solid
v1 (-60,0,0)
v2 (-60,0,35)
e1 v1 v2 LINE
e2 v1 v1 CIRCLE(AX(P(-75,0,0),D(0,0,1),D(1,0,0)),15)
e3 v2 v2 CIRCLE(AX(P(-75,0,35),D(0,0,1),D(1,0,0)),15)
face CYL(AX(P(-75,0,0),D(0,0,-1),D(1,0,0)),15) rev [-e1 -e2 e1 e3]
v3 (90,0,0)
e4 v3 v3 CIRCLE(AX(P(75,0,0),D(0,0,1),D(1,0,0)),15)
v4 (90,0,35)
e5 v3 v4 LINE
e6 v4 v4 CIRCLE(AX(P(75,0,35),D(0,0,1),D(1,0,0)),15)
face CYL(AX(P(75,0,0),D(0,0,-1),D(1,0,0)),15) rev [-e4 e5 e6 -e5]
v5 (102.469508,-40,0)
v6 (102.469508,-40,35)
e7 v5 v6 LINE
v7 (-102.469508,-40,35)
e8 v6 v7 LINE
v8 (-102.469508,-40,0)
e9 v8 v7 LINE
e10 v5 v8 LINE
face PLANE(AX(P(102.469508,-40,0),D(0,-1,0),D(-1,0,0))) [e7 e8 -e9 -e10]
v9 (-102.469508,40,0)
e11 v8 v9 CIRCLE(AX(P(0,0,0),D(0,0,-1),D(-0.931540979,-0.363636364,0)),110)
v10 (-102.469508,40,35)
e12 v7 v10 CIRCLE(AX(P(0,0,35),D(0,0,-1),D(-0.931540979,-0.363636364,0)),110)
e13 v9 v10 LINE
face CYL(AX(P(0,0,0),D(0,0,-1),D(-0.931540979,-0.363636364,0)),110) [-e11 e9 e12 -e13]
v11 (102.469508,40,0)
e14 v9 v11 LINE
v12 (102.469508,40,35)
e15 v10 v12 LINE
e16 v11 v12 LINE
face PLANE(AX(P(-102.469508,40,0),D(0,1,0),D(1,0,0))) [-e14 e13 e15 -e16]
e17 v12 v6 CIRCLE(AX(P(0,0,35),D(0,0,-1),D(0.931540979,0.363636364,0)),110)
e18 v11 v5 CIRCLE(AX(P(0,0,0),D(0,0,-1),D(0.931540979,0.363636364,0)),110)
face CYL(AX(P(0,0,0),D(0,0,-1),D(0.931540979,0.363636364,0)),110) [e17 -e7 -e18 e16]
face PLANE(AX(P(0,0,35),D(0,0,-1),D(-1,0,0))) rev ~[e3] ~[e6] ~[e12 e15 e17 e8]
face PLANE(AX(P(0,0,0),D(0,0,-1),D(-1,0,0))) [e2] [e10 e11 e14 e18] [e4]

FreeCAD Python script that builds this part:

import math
import FreeCAD as App
import Part
import Sketcher
from FreeCAD import Vector

doc = App.newDocument("Part")
body = doc.addObject("PartDesign::Body", "Body")

# Sketch on XY plane
sketch1 = body.newObject("Sketcher::SketchObject", "Sketch")
sketch1.AttachmentSupport = (doc.getObject("XY_Plane"), [""])
sketch1.MapMode = "FlatFace"
sketch1.addGeometry([
    Part.LineSegment(Vector(102.469508, 40, 0), Vector(-102.469508, 40, 0)),  # 0
    Part.ArcOfCircle(Part.Circle(Vector(0, 0, 0), Vector(0, 0, 1), 110), math.radians(158.676314), math.radians(201.323686)),  # 1
    Part.LineSegment(Vector(-102.469508, -40, 0), Vector(102.469508, -40, 0)),  # 2
    Part.ArcOfCircle(Part.Circle(Vector(0, 0, 0), Vector(0, 0, 1), 110), math.radians(-21.323686), math.radians(21.323686)),  # 3
    Part.Circle(Vector(75, 0, 0), Vector(0, 0, 1), 15),  # 4
    Part.Circle(Vector(-75, 0, 0), Vector(0, 0, 1), 15),  # 5
], False)
sketch1.addConstraint([
    Sketcher.Constraint("Coincident", 0, 2, 1, 1),
    Sketcher.Constraint("Coincident", 1, 2, 2, 1),
    Sketcher.Constraint("Coincident", 2, 2, 3, 1),
    Sketcher.Constraint("Coincident", 3, 2, 0, 1),
    Sketcher.Constraint("Horizontal", 0),
    Sketcher.Constraint("Horizontal", 2),
    Sketcher.Constraint("Coincident", 1, 3, -1, 1),
    Sketcher.Constraint("Coincident", 3, 3, -1, 1),
    Sketcher.Constraint("Equal", 1, 3),
    Sketcher.Constraint("Equal", 4, 5),
    Sketcher.Constraint("Symmetric", 4, 3, 5, 3, -1, 1),
    Sketcher.Constraint("PointOnObject", 4, 3, -1),
    Sketcher.Constraint("Vertical", 0, 2, 1, 2),
    Sketcher.Constraint("Diameter", 4, 30.0),
    Sketcher.Constraint("Radius", 1, 110.0),
    Sketcher.Constraint("DistanceX", -1, 1, 4, 3, 75.0),
    Sketcher.Constraint("DistanceY", -1, 1, 0, 2, 40.0),
])
pad1 = body.newObject("PartDesign::Pad", "Pad")
pad1.Profile = sketch1
pad1.Length = 35

doc.recompute()
